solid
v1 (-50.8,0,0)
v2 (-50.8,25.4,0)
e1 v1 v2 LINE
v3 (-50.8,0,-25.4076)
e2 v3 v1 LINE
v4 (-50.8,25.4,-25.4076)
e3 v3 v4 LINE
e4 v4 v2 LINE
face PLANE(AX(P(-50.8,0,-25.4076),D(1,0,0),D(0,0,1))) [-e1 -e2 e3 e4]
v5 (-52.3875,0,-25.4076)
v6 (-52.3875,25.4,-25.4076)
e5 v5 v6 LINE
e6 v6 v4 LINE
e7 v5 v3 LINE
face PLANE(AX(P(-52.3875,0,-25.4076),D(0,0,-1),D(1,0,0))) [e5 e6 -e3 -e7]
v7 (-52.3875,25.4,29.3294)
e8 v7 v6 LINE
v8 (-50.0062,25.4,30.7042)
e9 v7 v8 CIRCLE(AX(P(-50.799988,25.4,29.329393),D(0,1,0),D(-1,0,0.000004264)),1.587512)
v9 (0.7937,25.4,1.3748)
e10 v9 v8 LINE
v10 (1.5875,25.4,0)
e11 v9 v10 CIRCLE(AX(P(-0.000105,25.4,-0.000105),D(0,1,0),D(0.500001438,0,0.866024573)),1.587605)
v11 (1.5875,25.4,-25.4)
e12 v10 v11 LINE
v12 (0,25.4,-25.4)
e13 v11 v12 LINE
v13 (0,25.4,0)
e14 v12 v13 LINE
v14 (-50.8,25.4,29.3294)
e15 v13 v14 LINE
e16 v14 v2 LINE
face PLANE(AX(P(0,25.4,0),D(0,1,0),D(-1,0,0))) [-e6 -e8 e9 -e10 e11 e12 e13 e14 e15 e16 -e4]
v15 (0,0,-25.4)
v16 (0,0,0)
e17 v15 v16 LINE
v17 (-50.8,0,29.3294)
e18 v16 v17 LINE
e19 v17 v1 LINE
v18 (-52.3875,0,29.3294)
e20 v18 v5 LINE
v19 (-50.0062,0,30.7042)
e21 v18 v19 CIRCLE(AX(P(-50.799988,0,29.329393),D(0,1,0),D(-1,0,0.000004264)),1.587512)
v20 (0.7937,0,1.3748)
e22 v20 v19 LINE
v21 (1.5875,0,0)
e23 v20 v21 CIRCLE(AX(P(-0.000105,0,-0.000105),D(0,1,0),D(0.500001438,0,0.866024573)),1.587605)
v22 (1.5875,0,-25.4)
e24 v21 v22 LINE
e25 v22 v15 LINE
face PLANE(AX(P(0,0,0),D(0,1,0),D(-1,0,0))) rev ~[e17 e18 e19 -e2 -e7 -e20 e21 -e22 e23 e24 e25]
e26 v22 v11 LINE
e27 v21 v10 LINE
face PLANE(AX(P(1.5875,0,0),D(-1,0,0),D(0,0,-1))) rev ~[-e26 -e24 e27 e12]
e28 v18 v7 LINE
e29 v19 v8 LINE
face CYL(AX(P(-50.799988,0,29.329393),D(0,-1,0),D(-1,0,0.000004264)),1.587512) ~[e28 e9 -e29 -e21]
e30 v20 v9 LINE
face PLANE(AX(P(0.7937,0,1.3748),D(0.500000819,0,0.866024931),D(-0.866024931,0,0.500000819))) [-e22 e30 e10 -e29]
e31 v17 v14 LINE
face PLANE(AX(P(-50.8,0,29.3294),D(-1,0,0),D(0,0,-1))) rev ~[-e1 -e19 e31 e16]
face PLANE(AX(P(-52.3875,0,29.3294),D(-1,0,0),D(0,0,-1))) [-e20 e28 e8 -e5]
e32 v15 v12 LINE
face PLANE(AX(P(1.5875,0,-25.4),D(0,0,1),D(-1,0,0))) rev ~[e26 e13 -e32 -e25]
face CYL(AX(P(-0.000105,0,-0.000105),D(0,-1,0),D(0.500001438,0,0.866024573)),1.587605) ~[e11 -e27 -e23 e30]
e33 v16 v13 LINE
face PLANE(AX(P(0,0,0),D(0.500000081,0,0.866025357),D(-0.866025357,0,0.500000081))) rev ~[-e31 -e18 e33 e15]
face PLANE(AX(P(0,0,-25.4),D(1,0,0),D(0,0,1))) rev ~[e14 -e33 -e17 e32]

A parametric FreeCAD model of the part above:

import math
import FreeCAD as App
import Part
import Sketcher

V = App.Vector
Q = App.Units.Quantity

doc = App.newDocument("Part")
body = doc.addObject("PartDesign::Body", "Body")

# Sketch on XZ plane
sketch1 = body.newObject("Sketcher::SketchObject", "Sketch")
sketch1.AttachmentSupport = (doc.getObject("XZ_Plane"), [""])
sketch1.MapMode = "FlatFace"
sketch1.addGeometry([
    Part.ArcOfCircle(Part.Circle(V(0, 0, 0), V(0, 0, 1), 1.6), math.radians(0), math.radians(60)),  # 0
    Part.LineSegment(V(1.6, 0, 0), V(1.6, -25.4, 0)),  # 1
    Part.LineSegment(V(1.6, -25.4, 0), V(0, -25.4, 0)),  # 2
    Part.LineSegment(V(0, -25.4, 0), V(0, 0, 0)),  # 3
    Part.LineSegment(V(0, 0, 0), V(-50.8, 29.3, 0)),  # 4
    Part.LineSegment(V(-50.8, 29.3, 0), V(-50.8, -25.4, 0)),  # 5
    Part.LineSegment(V(-50.8, -25.4, 0), V(-52.4, -25.4, 0)),  # 6
    Part.LineSegment(V(-52.4, -25.4, 0), V(-52.4, 29.3, 0)),  # 7
    Part.ArcOfCircle(Part.Circle(V(-50.8, 29.3, 0), V(0, 0, 1), 1.6), math.radians(60), math.radians(180)),  # 8
    Part.LineSegment(V(-50, 30.7, 0), V(0.8, 1.4, 0)),  # 9
], False)
sketch1.addConstraint([
    Sketcher.Constraint("Tangent", 0, 1, 1, 1),
    Sketcher.Constraint("Coincident", 1, 2, 2, 1),
    Sketcher.Constraint("Coincident", 2, 2, 3, 1),
    Sketcher.Constraint("Coincident", 3, 2, 4, 1),
    Sketcher.Constraint("Coincident", 4, 2, 5, 1),
    Sketcher.Constraint("Coincident", 5, 2, 6, 1),
    Sketcher.Constraint("Coincident", 6, 2, 7, 1),
    Sketcher.Constraint("Tangent", 7, 2, 8, 2),
    Sketcher.Constraint("Tangent", 8, 1, 9, 1),
    Sketcher.Constraint("Tangent", 9, 2, 0, 2),
    Sketcher.Constraint("Vertical", 1),
    Sketcher.Constraint("Horizontal", 2),
    Sketcher.Constraint("Vertical", 3),
    Sketcher.Constraint("Vertical", 5),
    Sketcher.Constraint("Horizontal", 6),
    Sketcher.Constraint("Vertical", 7),
    Sketcher.Constraint("Coincident", 0, 3, -1, 1),
    Sketcher.Constraint("Coincident", 3, 2, -1, 1),
    Sketcher.Constraint("Coincident", 4, 2, 8, 3),
    Sketcher.Constraint("Equal", 0, 8),
    Sketcher.Constraint("DistanceY", 1, 2, 1, 1, Q("1 in")),
    Sketcher.Constraint("Radius", 0, Q("0.0625 in")),
    Sketcher.Constraint("DistanceY", 5, 2, 5, 1, Q("2.155 in")),
    Sketcher.Constraint("DistanceX", 8, 3, -1, 1, Q("2 in")),
    Sketcher.Constraint("Angle", 4, Q("150 deg")),
])
pad1 = body.newObject("PartDesign::Pad", "Pad")
pad1.Profile = sketch1
pad1.Length = Q("1 in")
pad1.Reversed = True

doc.recompute()
